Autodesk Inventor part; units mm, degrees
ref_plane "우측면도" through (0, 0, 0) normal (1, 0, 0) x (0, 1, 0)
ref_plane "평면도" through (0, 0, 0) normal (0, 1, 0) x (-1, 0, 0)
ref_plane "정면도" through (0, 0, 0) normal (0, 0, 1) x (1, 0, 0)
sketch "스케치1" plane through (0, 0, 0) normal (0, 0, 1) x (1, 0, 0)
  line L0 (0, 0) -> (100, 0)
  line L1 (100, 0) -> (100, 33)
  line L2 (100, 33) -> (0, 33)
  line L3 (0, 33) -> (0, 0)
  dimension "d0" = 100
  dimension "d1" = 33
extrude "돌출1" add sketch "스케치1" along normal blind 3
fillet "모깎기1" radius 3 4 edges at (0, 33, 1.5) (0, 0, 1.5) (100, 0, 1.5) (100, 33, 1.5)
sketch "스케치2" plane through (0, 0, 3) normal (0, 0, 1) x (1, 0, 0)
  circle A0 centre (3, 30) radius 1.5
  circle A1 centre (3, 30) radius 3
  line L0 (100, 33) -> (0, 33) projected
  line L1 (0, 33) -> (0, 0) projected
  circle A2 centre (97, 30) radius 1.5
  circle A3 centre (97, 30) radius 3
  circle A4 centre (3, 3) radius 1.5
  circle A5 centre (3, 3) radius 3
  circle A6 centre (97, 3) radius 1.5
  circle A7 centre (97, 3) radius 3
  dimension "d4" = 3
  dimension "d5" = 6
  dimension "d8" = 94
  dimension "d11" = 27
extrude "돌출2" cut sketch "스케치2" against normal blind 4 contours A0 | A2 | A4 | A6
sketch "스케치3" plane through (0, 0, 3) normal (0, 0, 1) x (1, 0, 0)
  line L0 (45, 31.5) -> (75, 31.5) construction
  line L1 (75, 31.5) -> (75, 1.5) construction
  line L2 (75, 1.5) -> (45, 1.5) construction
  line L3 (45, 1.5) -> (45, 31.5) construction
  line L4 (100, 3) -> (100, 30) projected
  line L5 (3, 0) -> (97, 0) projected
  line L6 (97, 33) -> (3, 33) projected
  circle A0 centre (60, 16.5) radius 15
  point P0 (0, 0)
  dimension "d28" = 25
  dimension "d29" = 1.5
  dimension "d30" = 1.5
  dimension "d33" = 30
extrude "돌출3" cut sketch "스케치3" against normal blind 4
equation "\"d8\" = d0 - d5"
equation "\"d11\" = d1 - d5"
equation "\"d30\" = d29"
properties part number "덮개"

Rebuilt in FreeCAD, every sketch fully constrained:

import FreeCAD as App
import Part
import Sketcher


def edges_at(feature, points):
    """Names of the edges that pass closest to the given points."""
    edges = feature.Shape.Edges
    near = lambda p: min(range(len(edges)), key=lambda i: edges[i].distToShape(Part.Vertex(*p))[0])
    return sorted({f"Edge{near(p) + 1}" for p in points})

doc = App.newDocument("Part")
params = doc.addObject("Spreadsheet::Sheet", "Params")
for row, (alias, value) in enumerate([
    ("sketch1_width", "100 mm"),
    ("sketch1_height", "33 mm"),
    ("pad1_length", "3 mm"),
    ("fillet_radius", "3 mm"),
    ("sketch2_diameter", "3 mm"),
    ("pocket1_length", "4 mm"),
    ("sketch3_diameter", "30 mm"),
    ("pocket2_length", "4 mm"),
], start=1):
    params.set(f"A{row}", alias)
    params.set(f"B{row}", "=" + value)
    params.setAlias(f"B{row}", alias)

body = doc.addObject("PartDesign::Body", "Body")

# Sketch on XY plane
sketch1 = body.newObject("Sketcher::SketchObject", "Sketch")
sketch1.AttachmentSupport = (doc.getObject("XY_Plane"), [""])
sketch1.MapMode = "FlatFace"
sketch1.addGeometry([
    Part.LineSegment(App.Vector(0, 33, 0), App.Vector(0, 0, 0)),
    Part.LineSegment(App.Vector(0, 0, 0), App.Vector(100, 0, 0)),
    Part.LineSegment(App.Vector(100, 0, 0), App.Vector(100, 33, 0)),
    Part.LineSegment(App.Vector(100, 33, 0), App.Vector(0, 33, 0)),
], False)
sketch1.addConstraint([
    Sketcher.Constraint("Coincident", 0, 2, 1, 1),
    Sketcher.Constraint("Coincident", 1, 2, 2, 1),
    Sketcher.Constraint("Coincident", 2, 2, 3, 1),
    Sketcher.Constraint("Coincident", 3, 2, 0, 1),
    Sketcher.Constraint("Vertical", 0),
    Sketcher.Constraint("Horizontal", 1),
    Sketcher.Constraint("Vertical", 2),
    Sketcher.Constraint("Horizontal", 3),
    Sketcher.Constraint("Coincident", 0, 2, -1, 1),
    Sketcher.Constraint("DistanceX", 1, 1, 1, 2, 100.0),
    Sketcher.Constraint("DistanceY", 0, 2, 0, 1, 33.0),
])
sketch1.setExpression("Constraints[9]", "Params.sketch1_width")
sketch1.setExpression("Constraints[10]", "Params.sketch1_height")
pad1 = body.newObject("PartDesign::Pad", "Pad")
pad1.Profile = sketch1
pad1.setExpression("Length", "Params.pad1_length")
doc.recompute()

fillet = body.newObject("PartDesign::Fillet", "Fillet")
fillet.Base = (pad1, edges_at(pad1, [
    (0, 33, 1.5),
    (0, 0, 1.5),
    (100, 0, 1.5),
    (100, 33, 1.5),
]))
fillet.setExpression("Radius", "Params.fillet_radius")

# Sketch on XY plane
sketch2 = body.newObject("Sketcher::SketchObject", "Sketch001")
sketch2.AttachmentSupport = (doc.getObject("XY_Plane"), [""])
sketch2.MapMode = "FlatFace"
sketch2.AttachmentOffset = App.Placement(App.Vector(0, 0, 3), App.Rotation())
sketch2.addGeometry([
    Part.Circle(App.Vector(3, 30, 0), App.Vector(0, 0, 1), 1.5),
    Part.Circle(App.Vector(97, 30, 0), App.Vector(0, 0, 1), 1.5),
    Part.Circle(App.Vector(3, 3, 0), App.Vector(0, 0, 1), 1.5),
    Part.Circle(App.Vector(97, 3, 0), App.Vector(0, 0, 1), 1.5),
], False)
sketch2.addConstraint([
    Sketcher.Constraint("Equal", 0, 1),
    Sketcher.Constraint("Equal", 1, 2),
    Sketcher.Constraint("Equal", 2, 3),
    Sketcher.Constraint("Horizontal", 0, 3, 1, 3),
    Sketcher.Constraint("Horizontal", 2, 3, 3, 3),
    Sketcher.Constraint("Vertical", 0, 3, 2, 3),
    Sketcher.Constraint("Vertical", 1, 3, 3, 3),
    Sketcher.Constraint("Diameter", 0, 3.0),
    Sketcher.Constraint("DistanceX", -1, 1, 0, 3, 3.0),
    Sketcher.Constraint("DistanceY", -1, 1, 2, 3, 3.0),
    Sketcher.Constraint("DistanceX", 0, 3, 1, 3, 94.0),
    Sketcher.Constraint("DistanceY", 2, 3, 0, 3, 27.0),
])
sketch2.setExpression("Constraints[7]", "Params.sketch2_diameter")
pocket1 = body.newObject("PartDesign::Pocket", "Pocket")
pocket1.Profile = sketch2
pocket1.setExpression("Length", "Params.pocket1_length")

# Sketch on XY plane
sketch3 = body.newObject("Sketcher::SketchObject", "Sketch002")
sketch3.AttachmentSupport = (doc.getObject("XY_Plane"), [""])
sketch3.MapMode = "FlatFace"
sketch3.AttachmentOffset = App.Placement(App.Vector(0, 0, 3), App.Rotation())
sketch3.addGeometry(Part.Circle(App.Vector(60, 16, 0), App.Vector(0, 0, 1), 15), False)
sketch3.addConstraint([
    Sketcher.Constraint("Diameter", 0, 30.0),
    Sketcher.Constraint("DistanceX", -1, 1, 0, 3, 60.0),
    Sketcher.Constraint("DistanceY", -1, 1, 0, 3, 16.5),
])
sketch3.setExpression("Constraints[0]", "Params.sketch3_diameter")
pocket2 = body.newObject("PartDesign::Pocket", "Pocket001")
pocket2.Profile = sketch3
pocket2.setExpression("Length", "Params.pocket2_length")

doc.recompute()
